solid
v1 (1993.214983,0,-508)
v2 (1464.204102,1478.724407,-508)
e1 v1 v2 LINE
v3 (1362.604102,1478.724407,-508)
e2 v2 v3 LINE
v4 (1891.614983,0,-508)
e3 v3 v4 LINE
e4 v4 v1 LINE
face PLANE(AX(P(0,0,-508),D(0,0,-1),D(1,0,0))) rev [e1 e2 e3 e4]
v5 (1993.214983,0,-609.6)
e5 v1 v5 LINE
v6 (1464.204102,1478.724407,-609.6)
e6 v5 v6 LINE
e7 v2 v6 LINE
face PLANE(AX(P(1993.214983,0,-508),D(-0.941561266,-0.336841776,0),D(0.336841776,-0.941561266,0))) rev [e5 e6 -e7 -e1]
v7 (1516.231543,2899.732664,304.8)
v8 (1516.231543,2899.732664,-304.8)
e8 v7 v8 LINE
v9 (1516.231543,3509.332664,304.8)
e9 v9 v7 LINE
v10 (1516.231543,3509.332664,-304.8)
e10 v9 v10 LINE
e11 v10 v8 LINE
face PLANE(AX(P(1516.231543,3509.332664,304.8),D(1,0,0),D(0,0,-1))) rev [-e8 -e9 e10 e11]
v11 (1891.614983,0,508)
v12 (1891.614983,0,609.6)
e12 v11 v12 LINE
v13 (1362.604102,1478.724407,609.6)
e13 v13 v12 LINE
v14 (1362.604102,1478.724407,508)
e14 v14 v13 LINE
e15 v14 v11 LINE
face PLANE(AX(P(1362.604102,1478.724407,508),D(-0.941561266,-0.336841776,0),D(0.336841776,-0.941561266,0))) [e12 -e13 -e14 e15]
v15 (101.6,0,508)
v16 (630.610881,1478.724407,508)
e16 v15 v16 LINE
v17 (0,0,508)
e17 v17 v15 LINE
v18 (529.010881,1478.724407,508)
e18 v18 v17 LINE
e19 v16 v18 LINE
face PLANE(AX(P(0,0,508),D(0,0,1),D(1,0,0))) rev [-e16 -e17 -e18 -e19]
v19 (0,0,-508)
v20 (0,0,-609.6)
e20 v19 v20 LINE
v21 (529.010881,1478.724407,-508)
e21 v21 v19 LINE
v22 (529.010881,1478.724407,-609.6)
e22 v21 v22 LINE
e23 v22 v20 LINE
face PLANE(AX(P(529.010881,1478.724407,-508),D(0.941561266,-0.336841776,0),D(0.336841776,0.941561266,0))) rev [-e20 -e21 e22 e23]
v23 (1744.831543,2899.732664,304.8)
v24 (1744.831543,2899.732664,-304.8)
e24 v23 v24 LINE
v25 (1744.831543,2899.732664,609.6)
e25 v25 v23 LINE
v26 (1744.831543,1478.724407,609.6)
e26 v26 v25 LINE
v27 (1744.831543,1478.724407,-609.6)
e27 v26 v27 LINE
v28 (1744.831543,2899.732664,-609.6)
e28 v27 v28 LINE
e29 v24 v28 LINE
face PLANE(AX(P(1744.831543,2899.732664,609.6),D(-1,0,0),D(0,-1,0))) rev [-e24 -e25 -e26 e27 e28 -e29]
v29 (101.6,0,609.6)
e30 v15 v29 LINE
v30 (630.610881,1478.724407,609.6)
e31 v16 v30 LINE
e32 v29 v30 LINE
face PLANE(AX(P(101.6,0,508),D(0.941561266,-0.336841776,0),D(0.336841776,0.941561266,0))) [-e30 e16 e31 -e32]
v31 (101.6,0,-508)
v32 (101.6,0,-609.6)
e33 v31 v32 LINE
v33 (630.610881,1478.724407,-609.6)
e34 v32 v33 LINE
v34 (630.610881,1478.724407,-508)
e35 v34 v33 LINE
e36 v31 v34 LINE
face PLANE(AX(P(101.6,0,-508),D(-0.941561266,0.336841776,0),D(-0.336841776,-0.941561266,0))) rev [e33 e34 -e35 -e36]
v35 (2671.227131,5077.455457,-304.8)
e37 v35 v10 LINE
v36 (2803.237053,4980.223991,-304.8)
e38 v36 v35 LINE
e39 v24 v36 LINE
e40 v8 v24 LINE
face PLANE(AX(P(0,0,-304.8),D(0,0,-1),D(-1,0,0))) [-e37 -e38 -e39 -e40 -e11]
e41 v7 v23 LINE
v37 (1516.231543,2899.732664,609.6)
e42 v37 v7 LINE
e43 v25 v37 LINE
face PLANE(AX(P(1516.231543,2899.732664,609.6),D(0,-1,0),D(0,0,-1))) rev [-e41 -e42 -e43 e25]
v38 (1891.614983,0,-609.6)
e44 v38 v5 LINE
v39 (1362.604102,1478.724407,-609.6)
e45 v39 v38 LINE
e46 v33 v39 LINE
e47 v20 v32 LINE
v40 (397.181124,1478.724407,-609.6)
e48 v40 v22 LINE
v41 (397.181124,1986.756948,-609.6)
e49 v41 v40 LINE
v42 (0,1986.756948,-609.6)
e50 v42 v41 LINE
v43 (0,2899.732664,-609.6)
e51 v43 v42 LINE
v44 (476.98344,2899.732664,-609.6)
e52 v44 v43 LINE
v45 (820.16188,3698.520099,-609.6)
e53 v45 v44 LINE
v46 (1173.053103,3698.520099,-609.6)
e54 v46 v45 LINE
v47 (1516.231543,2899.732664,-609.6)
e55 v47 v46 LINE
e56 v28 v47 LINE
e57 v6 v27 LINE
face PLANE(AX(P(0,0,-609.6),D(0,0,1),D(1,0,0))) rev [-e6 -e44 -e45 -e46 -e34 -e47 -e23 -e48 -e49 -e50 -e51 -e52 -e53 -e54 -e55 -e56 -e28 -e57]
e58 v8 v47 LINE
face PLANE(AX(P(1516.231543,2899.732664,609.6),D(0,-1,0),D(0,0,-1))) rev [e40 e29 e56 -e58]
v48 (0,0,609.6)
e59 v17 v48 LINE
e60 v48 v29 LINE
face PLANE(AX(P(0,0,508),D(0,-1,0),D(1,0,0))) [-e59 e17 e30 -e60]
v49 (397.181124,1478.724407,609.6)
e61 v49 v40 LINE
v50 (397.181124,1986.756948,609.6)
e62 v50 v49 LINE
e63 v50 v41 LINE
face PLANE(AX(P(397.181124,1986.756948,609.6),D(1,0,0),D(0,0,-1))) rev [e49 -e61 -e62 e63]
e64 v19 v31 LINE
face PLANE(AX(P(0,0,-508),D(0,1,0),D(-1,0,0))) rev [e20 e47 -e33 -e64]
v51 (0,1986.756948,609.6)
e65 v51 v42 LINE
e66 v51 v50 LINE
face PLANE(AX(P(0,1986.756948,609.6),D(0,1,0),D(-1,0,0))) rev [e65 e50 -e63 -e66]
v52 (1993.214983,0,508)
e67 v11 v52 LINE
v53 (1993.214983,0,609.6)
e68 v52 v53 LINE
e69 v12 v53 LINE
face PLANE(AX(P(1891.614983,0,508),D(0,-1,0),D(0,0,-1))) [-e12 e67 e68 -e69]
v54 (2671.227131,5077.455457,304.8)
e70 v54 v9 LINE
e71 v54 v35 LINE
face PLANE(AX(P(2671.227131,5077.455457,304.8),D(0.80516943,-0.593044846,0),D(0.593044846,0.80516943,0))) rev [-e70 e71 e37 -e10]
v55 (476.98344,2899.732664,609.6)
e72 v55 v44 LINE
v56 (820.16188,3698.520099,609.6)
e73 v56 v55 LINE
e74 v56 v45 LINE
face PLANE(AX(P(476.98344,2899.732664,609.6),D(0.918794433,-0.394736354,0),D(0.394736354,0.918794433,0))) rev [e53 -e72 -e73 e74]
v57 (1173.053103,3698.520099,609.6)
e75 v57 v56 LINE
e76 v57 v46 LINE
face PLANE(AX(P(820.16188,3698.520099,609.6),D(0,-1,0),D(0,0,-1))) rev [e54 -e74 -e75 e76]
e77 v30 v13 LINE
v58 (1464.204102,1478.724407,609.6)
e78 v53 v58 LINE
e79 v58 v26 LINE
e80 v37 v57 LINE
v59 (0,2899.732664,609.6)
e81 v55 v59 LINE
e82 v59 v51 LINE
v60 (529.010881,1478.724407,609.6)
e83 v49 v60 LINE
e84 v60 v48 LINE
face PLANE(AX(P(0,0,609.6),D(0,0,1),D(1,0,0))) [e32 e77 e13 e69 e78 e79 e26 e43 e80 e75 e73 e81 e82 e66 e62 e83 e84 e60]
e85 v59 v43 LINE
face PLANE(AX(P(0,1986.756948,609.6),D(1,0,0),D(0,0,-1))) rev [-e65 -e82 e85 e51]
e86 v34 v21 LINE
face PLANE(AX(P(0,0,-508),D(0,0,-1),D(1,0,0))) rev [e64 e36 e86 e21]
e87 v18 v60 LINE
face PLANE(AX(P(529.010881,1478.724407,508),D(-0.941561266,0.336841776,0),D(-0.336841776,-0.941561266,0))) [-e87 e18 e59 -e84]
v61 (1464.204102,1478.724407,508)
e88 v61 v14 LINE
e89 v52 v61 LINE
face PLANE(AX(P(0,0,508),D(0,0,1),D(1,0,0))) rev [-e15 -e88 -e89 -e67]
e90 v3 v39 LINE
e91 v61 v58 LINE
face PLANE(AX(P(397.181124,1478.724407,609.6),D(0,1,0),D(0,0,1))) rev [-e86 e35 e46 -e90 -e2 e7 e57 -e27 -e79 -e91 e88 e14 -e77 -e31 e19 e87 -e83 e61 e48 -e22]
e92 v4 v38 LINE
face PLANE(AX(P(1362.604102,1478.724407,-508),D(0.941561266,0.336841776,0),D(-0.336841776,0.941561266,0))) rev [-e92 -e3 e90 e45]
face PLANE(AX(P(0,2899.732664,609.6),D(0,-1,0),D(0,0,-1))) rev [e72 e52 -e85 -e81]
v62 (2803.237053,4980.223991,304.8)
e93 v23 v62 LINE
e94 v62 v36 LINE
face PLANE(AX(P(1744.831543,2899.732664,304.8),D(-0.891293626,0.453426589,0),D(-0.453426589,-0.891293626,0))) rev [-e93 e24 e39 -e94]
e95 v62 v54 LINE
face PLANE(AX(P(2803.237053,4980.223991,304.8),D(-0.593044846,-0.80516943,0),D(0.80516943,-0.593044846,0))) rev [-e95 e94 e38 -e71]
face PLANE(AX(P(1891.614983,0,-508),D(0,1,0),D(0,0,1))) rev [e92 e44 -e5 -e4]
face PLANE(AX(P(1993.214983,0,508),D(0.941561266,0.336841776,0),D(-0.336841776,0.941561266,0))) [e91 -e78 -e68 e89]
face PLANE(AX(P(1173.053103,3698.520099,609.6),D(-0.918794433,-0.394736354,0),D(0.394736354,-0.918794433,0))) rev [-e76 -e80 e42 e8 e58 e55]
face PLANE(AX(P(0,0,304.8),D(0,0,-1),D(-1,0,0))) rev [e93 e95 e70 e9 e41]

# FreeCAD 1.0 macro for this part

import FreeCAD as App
import Part
import Sketcher

V = App.Vector
Q = App.Units.Quantity


def add_polygon(sketch, points):
    """Adds a closed chain of lines whose ends are joined by coincident constraints."""
    first, n = sketch.GeometryCount, len(points)
    for a, b in zip(points, points[1:] + points[:1]):
        sketch.addGeometry(Part.LineSegment(App.Vector(*a, 0), App.Vector(*b, 0)), False)
    for i in range(n):
        sketch.addConstraint(Sketcher.Constraint("Coincident", first + i, 2, first + (i + 1) % n, 1))

doc = App.newDocument("Part")
body = doc.addObject("PartDesign::Body", "Body")

# Sketch on XY plane
sketch1 = body.newObject("Sketcher::SketchObject", "Sketch")
sketch1.AttachmentSupport = (doc.getObject("XY_Plane"), [""])
sketch1.MapMode = "FlatFace"
add_polygon(sketch1, [(397, 1479), (1745, 1479), (1745, 2900), (1516, 2900), (1173, 3699), (820, 3699), (477, 2900), (0, 2900), (0, 1987), (397, 1987)])  # lines 0-9
sketch1.addConstraint([
    Sketcher.Constraint("Horizontal", 0),
    Sketcher.Constraint("Vertical", 1),
    Sketcher.Constraint("Horizontal", 2),
    Sketcher.Constraint("Horizontal", 4),
    Sketcher.Constraint("Horizontal", 6),
    Sketcher.Constraint("Vertical", 7),
    Sketcher.Constraint("Horizontal", 8),
    Sketcher.Constraint("Vertical", 9),
    Sketcher.Constraint("PointOnObject", 6, 2, -2),
    Sketcher.Constraint("Horizontal", 2, 2, 5, 2),
    Sketcher.Constraint("Equal", 3, 5),
    Sketcher.Constraint("DistanceX", 2, 2, 2, 1, Q("9 in")),
    Sketcher.Constraint("DistanceX", 0, 1, 0, 2, 1347.650419),
    Sketcher.Constraint("DistanceX", 6, 2, 6, 1, 476.98344),
    Sketcher.Constraint("DistanceY", 9, 2, 9, 1, 508.032541),
    Sketcher.Constraint("DistanceY", -1, 1, 3, 2, 3698.520099),
    Sketcher.Constraint("DistanceX", 4, 2, 4, 1, 352.891224),
    Sketcher.Constraint("DistanceX", 8, 1, 8, 2, 397.181124),
    Sketcher.Constraint("DistanceY", 1, 1, 1, 2, 1421.008257),
    Sketcher.Constraint("DistanceY", 0, 2, 3, 2, 2219.795692),
])
pad1 = body.newObject("PartDesign::Pad", "Pad")
pad1.Profile = sketch1
pad1.Length = Q("48 in")
pad1.Midplane = True

# Sketch on XY plane
sketch2 = body.newObject("Sketcher::SketchObject", "Sketch001")
sketch2.AttachmentSupport = (doc.getObject("XY_Plane"), [""])
sketch2.MapMode = "FlatFace"
add_polygon(sketch2, [(1516, 3509), (1516, 2900), (1745, 2900), (2803, 4980), (2671, 5077)])  # lines 0-4
sketch2.addConstraint([
    Sketcher.Constraint("Vertical", 0),
    Sketcher.Constraint("Horizontal", 1),
    Sketcher.Constraint("Perpendicular", 3, 4),
    Sketcher.Constraint("DistanceX", 1, 1, 1, 2, Q("9 in")),
    Sketcher.Constraint("DistanceY", 0, 2, 0, 1, Q("24 in")),
    Sketcher.Constraint("Distance", 2, 2334.23786),
    Sketcher.Constraint("DistanceY", -1, 1, 2, 2, 4980.223991),
    Sketcher.Constraint("DistanceX", -1, 1, 3, 2, 2671.227131),
    Sketcher.Constraint("DistanceX", 1, 2, 2, 2, 1058.40551),
    Sketcher.Constraint("DistanceX", 1, 2, 3, 2, 926.395588),
])
pad2 = body.newObject("PartDesign::Pad", "Pad001")
pad2.Profile = sketch2
pad2.Length = Q("24 in")
pad2.Midplane = True

# Sketch on XY plane
sketch3 = body.newObject("Sketcher::SketchObject", "Sketch002")
sketch3.AttachmentSupport = (doc.getObject("XY_Plane"), [""])
sketch3.MapMode = "FlatFace"
sketch3.AttachmentOffset = App.Placement(V(0, 0, 24 * 25.4), App.Rotation())
add_polygon(sketch3, [(529, 1479), (0, 0), (102, 0), (631, 1479)])  # lines 0-3
add_polygon(sketch3, [(1464, 1479), (1363, 1479), (1892, 0), (1993, 0)])  # lines 4-7
sketch3.addConstraint([
    Sketcher.Constraint("Horizontal", 1),
    Sketcher.Constraint("Horizontal", 3),
    Sketcher.Constraint("Horizontal", 4),
    Sketcher.Constraint("Horizontal", 6),
    Sketcher.Constraint("Coincident", 0, 2, -1, 1),
    Sketcher.Constraint("PointOnObject", 5, 2, -1),
    Sketcher.Constraint("Parallel", 0, 2),
    Sketcher.Constraint("Parallel", 5, 7),
    Sketcher.Constraint("Horizontal", 3, 2, 4, 2),
    Sketcher.Constraint("Equal", 3, 4),
    Sketcher.Constraint("Equal", 2, 5),
    Sketcher.Constraint("DistanceX", 1, 1, 1, 2, Q("4 in")),
    Sketcher.Constraint("DistanceX", -1, 1, 2, 2, Q("24.8272 in")),
    Sketcher.Constraint("DistanceX", -1, 1, 4, 2, 1362.604102),
    Sketcher.Constraint("Distance", 0, 1570.50259),
])
pad3 = body.newObject("PartDesign::Pad", "Pad002")
pad3.Profile = sketch3
pad3.Length = Q("4 in")
pad3.Reversed = True
doc.recompute()

mirrored = body.newObject("PartDesign::Mirrored", "Mirrored")
mirrored.Originals = [pad3]
mirrored.MirrorPlane = (doc.getObject("XY_Plane"), [""])
body.Tip = mirrored

doc.recompute()
